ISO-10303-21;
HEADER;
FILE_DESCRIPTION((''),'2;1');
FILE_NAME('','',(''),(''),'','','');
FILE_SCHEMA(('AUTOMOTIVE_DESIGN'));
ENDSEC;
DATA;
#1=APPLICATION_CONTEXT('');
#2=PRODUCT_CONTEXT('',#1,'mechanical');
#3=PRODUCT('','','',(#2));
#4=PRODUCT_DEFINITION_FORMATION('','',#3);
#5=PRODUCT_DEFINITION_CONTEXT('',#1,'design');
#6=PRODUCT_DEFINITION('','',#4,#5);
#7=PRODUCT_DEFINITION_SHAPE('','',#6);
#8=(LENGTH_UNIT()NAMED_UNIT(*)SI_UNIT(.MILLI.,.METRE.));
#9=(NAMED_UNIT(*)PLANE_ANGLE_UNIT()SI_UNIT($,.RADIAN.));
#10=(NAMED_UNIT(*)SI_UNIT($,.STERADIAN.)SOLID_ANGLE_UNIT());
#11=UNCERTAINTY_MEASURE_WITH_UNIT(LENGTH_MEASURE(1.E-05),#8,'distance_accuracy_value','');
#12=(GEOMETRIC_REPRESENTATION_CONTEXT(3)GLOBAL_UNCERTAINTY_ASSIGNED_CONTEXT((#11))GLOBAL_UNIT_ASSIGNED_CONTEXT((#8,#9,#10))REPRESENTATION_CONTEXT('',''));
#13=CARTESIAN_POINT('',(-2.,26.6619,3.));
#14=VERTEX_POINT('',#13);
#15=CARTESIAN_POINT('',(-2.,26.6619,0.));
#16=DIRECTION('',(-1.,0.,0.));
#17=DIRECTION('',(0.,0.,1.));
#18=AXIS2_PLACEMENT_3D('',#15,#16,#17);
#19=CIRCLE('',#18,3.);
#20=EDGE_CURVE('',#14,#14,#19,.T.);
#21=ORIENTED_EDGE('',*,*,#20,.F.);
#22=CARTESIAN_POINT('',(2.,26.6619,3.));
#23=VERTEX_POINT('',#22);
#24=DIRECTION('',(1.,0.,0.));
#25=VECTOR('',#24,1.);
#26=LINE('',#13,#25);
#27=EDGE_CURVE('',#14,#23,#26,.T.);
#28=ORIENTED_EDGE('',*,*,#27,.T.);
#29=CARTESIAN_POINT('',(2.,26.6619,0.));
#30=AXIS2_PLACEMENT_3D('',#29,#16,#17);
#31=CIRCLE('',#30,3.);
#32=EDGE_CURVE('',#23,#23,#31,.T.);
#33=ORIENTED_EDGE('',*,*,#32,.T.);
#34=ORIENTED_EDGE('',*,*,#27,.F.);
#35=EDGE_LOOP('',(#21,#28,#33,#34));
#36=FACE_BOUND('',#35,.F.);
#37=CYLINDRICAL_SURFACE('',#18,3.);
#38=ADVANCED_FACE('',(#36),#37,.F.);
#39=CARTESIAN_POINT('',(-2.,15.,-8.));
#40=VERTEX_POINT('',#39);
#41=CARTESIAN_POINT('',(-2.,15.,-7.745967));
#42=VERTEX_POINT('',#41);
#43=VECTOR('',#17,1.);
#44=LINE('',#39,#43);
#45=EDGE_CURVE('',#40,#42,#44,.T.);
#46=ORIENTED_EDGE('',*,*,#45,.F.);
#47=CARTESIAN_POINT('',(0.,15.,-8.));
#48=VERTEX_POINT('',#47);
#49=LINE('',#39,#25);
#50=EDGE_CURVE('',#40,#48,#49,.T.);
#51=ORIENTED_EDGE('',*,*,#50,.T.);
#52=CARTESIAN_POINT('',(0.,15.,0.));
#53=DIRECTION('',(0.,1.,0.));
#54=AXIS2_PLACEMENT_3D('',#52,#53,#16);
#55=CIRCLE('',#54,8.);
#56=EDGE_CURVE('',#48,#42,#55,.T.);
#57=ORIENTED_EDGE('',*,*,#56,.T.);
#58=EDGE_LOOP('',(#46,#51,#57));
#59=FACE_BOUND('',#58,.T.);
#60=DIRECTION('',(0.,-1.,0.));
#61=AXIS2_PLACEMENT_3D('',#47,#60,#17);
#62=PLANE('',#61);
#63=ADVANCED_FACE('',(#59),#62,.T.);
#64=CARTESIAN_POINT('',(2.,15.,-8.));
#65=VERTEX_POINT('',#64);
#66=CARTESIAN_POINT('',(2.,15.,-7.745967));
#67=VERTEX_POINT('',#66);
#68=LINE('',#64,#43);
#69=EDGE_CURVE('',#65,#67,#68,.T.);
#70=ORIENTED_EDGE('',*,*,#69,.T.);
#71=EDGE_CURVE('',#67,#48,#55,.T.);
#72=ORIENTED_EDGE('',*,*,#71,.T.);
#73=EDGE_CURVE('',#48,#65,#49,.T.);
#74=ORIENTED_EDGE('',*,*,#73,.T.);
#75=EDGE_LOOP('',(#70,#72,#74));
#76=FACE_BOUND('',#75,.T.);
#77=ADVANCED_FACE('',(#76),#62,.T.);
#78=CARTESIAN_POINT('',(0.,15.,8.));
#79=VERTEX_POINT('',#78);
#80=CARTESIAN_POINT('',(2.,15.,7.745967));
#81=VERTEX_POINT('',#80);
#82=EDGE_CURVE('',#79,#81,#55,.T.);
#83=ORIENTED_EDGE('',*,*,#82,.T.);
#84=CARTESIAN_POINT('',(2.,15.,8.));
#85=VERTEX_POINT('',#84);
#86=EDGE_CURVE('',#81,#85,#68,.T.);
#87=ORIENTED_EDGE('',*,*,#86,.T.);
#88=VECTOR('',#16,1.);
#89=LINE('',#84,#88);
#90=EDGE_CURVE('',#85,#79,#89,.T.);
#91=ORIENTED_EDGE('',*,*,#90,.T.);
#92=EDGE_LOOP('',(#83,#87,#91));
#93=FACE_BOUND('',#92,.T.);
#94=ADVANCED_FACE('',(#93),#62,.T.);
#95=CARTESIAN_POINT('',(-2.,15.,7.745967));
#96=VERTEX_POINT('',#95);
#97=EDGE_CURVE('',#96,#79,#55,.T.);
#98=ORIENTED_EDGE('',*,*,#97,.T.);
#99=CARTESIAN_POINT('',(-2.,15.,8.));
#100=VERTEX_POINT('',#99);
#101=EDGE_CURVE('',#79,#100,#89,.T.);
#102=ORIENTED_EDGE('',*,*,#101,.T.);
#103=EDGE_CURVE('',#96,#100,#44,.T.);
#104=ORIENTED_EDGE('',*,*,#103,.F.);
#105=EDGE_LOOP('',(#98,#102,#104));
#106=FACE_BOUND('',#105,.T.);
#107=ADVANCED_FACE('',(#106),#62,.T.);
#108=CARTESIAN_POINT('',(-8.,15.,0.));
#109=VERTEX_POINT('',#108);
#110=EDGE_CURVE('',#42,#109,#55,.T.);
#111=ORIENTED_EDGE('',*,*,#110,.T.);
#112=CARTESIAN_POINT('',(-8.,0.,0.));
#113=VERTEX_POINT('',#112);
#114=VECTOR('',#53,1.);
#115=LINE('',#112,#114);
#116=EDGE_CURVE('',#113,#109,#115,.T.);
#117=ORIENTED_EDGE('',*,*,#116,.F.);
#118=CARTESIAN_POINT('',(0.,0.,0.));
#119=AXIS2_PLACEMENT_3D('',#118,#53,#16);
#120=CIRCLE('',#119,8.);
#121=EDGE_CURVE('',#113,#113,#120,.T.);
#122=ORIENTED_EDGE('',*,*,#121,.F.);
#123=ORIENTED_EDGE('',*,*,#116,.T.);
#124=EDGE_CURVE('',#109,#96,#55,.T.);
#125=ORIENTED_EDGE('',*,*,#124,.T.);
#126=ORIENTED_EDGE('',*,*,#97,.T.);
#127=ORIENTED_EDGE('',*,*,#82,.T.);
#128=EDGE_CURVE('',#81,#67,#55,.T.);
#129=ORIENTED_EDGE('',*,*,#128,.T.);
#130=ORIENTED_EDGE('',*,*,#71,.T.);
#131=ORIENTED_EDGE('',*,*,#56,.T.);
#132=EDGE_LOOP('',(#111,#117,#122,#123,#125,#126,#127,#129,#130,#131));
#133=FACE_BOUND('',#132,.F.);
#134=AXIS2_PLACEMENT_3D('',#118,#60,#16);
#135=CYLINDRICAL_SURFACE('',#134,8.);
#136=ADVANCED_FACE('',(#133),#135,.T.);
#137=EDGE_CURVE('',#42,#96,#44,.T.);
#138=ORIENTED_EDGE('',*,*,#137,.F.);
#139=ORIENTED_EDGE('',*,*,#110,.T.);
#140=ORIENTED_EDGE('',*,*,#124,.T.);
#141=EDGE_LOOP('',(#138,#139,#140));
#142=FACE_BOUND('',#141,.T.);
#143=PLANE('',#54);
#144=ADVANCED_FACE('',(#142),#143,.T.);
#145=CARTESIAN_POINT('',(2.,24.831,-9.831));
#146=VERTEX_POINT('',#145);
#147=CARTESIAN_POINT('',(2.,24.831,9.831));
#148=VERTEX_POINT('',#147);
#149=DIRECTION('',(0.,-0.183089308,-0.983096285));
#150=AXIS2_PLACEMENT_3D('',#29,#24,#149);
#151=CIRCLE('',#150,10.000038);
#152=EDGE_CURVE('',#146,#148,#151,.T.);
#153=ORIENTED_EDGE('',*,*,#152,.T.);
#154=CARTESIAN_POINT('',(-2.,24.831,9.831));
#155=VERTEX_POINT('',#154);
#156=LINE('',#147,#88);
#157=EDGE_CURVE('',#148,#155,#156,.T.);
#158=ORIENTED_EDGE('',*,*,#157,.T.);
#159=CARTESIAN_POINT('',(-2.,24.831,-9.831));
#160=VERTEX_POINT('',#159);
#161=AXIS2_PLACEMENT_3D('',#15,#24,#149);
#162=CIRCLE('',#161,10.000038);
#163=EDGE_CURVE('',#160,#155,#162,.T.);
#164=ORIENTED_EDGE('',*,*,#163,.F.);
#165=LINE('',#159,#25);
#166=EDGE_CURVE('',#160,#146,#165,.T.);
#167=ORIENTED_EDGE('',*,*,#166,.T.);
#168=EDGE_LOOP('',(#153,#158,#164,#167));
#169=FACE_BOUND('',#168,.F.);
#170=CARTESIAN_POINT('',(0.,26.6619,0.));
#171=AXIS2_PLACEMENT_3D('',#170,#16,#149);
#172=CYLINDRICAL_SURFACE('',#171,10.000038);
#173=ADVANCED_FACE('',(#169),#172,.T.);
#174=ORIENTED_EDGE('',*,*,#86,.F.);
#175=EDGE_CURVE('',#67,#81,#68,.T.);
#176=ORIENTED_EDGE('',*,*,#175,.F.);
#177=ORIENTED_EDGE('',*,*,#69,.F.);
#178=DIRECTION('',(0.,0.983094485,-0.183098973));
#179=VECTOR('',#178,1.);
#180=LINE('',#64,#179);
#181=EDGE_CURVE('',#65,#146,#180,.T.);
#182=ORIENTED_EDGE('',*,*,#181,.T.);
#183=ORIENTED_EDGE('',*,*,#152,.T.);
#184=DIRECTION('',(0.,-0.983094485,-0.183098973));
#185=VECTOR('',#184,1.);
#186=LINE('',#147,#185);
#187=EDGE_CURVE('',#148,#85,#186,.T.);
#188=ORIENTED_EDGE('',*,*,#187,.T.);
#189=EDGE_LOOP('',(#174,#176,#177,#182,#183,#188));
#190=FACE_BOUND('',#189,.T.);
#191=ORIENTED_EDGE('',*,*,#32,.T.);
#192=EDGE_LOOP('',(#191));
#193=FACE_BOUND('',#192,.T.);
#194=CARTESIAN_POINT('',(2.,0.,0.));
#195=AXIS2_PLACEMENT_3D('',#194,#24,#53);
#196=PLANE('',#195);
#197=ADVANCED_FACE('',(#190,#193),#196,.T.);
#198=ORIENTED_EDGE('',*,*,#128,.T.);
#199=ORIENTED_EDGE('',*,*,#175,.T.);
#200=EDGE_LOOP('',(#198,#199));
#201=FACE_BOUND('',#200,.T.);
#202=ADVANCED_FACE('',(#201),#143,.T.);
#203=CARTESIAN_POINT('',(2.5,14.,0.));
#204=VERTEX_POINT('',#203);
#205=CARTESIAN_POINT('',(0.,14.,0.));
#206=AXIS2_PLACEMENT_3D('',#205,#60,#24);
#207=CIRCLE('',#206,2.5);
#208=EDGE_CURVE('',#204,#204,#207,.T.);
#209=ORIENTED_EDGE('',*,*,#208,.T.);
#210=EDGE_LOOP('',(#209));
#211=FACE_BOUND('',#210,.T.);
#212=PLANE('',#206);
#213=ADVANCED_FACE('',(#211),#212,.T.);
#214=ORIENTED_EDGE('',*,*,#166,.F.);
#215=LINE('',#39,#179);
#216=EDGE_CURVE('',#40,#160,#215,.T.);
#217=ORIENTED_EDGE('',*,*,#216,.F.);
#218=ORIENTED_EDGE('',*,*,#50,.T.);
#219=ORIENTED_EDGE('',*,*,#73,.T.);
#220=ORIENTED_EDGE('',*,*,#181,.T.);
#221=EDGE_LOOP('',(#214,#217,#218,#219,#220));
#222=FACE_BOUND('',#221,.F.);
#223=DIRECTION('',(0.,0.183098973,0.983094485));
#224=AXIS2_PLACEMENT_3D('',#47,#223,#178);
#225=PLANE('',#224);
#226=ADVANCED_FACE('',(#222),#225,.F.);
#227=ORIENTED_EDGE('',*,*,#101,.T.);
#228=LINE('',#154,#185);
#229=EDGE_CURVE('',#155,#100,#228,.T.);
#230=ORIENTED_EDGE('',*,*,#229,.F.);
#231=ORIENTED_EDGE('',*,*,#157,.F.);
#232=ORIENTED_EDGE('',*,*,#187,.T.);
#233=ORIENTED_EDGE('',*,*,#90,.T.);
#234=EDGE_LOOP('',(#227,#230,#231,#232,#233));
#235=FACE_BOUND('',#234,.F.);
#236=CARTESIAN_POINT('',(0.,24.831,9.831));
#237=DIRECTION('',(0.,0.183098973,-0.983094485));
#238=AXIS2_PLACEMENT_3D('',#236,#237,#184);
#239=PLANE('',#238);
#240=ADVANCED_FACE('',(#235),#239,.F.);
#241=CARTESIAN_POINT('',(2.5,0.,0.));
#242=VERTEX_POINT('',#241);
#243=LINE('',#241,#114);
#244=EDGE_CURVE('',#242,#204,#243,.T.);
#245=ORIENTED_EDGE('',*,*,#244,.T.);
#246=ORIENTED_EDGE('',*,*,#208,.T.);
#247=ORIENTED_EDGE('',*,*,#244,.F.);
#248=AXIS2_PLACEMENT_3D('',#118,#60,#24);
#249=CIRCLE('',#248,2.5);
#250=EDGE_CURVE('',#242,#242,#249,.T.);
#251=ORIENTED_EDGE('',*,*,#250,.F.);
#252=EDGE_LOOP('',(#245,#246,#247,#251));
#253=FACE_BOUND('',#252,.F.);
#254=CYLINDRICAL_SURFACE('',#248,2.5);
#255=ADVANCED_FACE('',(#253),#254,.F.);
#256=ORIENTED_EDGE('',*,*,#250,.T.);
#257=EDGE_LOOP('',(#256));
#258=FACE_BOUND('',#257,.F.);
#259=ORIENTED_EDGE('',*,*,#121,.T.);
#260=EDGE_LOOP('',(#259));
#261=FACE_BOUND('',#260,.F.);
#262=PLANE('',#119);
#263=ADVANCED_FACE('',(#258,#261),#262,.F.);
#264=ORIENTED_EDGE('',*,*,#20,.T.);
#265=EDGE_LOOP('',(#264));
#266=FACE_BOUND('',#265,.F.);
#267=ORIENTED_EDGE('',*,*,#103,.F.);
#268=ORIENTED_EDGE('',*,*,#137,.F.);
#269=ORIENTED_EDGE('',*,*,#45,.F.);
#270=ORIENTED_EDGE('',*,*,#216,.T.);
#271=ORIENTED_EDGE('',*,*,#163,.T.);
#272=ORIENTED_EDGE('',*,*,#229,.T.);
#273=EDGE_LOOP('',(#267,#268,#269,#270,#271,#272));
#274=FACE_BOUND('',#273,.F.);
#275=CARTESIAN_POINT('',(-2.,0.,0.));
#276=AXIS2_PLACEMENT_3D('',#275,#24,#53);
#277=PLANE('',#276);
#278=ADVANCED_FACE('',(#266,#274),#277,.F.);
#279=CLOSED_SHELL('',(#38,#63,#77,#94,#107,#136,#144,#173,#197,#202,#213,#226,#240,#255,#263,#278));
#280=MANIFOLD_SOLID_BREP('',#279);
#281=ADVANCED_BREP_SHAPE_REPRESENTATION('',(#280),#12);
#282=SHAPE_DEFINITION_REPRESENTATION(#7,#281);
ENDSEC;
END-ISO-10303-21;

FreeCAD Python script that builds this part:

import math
import FreeCAD as App
import Part
import Sketcher

V = App.Vector

doc = App.newDocument("Part")
body = doc.addObject("PartDesign::Body", "Body")

# Sketch on XZ plane
sketch1 = body.newObject("Sketcher::SketchObject", "Sketch")
sketch1.AttachmentSupport = (doc.getObject("XZ_Plane"), [""])
sketch1.MapMode = "FlatFace"
sketch1.addGeometry(Part.Circle(V(0, 0, 0), V(0, 0, 1), 8), False)
sketch1.addConstraint([
    Sketcher.Constraint("Coincident", 0, 3, -1, 1),
    Sketcher.Constraint("Diameter", 0, 16.0),
])
pad1 = body.newObject("PartDesign::Pad", "Pad")
pad1.Profile = sketch1
pad1.Length = 15
pad1.Reversed = True

# Sketch on YZ plane
sketch2 = body.newObject("Sketcher::SketchObject", "Sketch001")
sketch2.AttachmentSupport = (doc.getObject("YZ_Plane"), [""])
sketch2.MapMode = "FlatFace"
sketch2.addGeometry([
    Part.LineSegment(V(15, 8, 0), V(15, -8, 0)),
    Part.LineSegment(V(15, -8, 0), V(24.831, -9.831, 0)),
    Part.ArcOfCircle(Part.Circle(V(26.6619, 0, 0), V(0, 0, 1), 10.000038), math.radians(-100.549755), math.radians(100.549755)),
    Part.LineSegment(V(24.831, 9.831, 0), V(15, 8, 0)),
], False)
sketch2.addConstraint([
    Sketcher.Constraint("Coincident", 0, 2, 1, 1),
    Sketcher.Constraint("Tangent", 1, 2, 2, 1),
    Sketcher.Constraint("Tangent", 2, 2, 3, 1),
    Sketcher.Constraint("Coincident", 3, 2, 0, 1),
    Sketcher.Constraint("Vertical", 0),
    Sketcher.Constraint("Symmetric", 1, 2, 2, 2, -1),
    Sketcher.Constraint("Radius", 2, 10.0),
    Sketcher.Constraint("Distance", 1, 10.0),
    Sketcher.Constraint("DistanceY", 0, 2, 0, 1, 16.0),
    Sketcher.Constraint("DistanceX", -1, 1, 0, 2, 15.0),
])
pad2 = body.newObject("PartDesign::Pad", "Pad001")
pad2.Profile = sketch2
pad2.Length = 4
pad2.Midplane = True

# Sketch on YZ plane
sketch3 = body.newObject("Sketcher::SketchObject", "Sketch002")
sketch3.AttachmentSupport = (doc.getObject("YZ_Plane"), [""])
sketch3.MapMode = "FlatFace"
sketch3.AttachmentOffset = App.Placement(V(0, 0, -2), App.Rotation())
sketch3.addGeometry(Part.Circle(V(26.6619, 0, 0), V(0, 0, 1), 3), False)
sketch3.addConstraint([
    Sketcher.Constraint("PointOnObject", 0, 3, -1),
    Sketcher.Constraint("Diameter", 0, 6.0),
    Sketcher.Constraint("DistanceX", -1, 1, 0, 3, 26.662),
])
pocket1 = body.newObject("PartDesign::Pocket", "Pocket")
pocket1.Profile = sketch3
pocket1.Length = 4
pocket1.Reversed = True

# Sketch on XZ plane
sketch4 = body.newObject("Sketcher::SketchObject", "Sketch003")
sketch4.AttachmentSupport = (doc.getObject("XZ_Plane"), [""])
sketch4.MapMode = "FlatFace"
sketch4.addGeometry(Part.Circle(V(0, 0, 0), V(0, 0, 1), 2.5), False)
sketch4.addConstraint([
    Sketcher.Constraint("Coincident", 0, 3, -1, 1),
    Sketcher.Constraint("Diameter", 0, 5.0),
])
pocket2 = body.newObject("PartDesign::Pocket", "Pocket001")
pocket2.Profile = sketch4
pocket2.Length = 14

doc.recompute()
